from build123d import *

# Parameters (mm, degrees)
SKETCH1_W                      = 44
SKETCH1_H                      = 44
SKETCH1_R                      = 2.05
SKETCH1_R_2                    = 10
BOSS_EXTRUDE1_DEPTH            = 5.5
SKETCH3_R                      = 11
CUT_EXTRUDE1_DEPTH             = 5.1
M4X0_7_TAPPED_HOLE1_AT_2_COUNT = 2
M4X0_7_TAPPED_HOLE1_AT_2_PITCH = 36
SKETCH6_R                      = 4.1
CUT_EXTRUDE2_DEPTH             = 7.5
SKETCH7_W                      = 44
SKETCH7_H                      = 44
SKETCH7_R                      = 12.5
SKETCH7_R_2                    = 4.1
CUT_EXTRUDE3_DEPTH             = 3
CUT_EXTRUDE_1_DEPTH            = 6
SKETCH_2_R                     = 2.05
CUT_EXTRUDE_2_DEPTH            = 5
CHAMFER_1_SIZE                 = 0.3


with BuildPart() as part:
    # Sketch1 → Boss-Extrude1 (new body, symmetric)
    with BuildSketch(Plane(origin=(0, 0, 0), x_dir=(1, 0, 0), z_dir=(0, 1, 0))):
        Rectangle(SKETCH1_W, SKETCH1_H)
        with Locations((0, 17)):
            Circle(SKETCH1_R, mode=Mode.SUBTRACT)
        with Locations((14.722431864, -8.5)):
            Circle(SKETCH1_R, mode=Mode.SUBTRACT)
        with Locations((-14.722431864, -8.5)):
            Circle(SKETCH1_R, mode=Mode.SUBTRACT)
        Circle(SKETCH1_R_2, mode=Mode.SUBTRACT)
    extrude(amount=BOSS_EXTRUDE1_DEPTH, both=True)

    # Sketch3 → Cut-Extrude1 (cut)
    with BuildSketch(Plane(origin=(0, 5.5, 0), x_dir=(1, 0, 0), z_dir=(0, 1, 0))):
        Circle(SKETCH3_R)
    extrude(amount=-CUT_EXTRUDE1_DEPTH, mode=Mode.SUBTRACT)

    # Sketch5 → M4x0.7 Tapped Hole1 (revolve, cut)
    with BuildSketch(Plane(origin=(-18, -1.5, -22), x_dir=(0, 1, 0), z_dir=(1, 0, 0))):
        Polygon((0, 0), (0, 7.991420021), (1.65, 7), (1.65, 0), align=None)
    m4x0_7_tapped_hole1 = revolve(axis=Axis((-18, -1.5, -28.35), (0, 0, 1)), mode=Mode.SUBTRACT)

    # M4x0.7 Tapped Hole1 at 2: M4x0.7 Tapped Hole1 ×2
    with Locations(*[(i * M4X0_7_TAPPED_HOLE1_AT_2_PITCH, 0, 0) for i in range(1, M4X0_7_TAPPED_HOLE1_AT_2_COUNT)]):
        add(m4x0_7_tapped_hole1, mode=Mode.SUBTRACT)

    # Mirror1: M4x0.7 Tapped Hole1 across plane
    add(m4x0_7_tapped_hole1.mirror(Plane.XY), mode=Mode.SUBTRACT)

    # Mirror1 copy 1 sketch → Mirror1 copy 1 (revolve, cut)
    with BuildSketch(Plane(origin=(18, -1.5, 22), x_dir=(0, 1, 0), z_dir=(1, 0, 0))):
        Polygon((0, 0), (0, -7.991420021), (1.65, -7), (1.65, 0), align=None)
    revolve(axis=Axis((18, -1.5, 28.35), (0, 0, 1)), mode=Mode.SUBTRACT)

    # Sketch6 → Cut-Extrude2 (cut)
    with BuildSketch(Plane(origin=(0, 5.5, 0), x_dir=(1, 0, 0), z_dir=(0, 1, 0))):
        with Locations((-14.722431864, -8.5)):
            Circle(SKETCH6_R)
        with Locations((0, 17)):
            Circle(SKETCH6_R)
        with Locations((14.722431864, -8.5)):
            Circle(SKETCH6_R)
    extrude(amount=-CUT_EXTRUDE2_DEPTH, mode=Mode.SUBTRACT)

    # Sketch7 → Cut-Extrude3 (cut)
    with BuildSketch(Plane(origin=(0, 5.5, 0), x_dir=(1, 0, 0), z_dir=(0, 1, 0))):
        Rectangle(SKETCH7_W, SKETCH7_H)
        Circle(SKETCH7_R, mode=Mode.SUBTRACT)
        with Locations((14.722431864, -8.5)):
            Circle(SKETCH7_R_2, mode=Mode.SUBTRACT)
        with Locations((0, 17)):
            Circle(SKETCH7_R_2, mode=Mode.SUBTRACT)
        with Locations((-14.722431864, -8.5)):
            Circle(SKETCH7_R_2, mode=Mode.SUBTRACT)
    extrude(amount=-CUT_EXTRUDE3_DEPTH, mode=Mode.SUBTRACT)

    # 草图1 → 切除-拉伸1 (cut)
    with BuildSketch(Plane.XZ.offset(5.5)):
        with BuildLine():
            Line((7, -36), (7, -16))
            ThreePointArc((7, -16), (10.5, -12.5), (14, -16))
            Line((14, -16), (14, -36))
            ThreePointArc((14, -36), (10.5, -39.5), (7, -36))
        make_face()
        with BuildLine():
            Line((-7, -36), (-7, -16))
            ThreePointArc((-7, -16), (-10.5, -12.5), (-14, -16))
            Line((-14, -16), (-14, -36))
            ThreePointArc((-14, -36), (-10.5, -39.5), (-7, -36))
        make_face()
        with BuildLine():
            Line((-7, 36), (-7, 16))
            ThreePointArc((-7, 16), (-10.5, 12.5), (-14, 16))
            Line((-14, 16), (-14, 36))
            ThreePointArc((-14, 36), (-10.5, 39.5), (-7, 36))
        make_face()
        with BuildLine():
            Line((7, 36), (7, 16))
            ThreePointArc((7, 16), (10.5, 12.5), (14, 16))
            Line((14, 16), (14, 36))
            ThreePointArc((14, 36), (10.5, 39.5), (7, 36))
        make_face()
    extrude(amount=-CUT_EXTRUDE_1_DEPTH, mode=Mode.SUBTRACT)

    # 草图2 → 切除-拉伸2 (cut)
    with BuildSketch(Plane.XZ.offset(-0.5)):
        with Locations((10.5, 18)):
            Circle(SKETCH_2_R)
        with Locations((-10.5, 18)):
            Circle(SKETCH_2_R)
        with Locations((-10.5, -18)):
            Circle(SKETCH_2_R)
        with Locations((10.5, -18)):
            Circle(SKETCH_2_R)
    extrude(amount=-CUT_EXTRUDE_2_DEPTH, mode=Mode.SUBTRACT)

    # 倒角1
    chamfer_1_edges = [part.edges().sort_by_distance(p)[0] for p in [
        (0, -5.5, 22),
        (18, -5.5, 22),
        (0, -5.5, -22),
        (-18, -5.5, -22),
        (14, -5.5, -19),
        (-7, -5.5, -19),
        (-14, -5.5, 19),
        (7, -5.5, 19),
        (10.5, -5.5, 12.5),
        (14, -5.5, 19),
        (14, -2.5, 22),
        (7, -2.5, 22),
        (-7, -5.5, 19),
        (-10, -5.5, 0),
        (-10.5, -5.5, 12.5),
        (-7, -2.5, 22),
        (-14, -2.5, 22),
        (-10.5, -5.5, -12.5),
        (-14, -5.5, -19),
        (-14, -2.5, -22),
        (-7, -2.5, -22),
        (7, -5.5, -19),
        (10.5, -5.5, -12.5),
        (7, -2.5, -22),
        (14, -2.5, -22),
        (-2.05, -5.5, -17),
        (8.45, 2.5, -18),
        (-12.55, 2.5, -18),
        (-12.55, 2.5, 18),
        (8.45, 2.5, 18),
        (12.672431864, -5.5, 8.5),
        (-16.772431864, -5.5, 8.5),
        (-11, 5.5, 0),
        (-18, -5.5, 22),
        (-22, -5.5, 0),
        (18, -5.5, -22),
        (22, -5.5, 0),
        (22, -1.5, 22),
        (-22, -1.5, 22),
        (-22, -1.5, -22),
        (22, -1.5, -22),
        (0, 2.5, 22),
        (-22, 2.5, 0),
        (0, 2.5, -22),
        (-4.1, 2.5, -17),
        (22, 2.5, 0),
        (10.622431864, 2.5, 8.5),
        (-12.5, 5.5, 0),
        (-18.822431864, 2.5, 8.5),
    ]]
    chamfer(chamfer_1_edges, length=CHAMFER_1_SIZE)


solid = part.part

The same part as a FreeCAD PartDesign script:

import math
import FreeCAD as App
import Part
import Sketcher

V = App.Vector
Q = App.Units.Quantity


def edges_at(feature, points):
    """Names of the edges that pass closest to the given points."""
    edges = feature.Shape.Edges
    near = lambda p: min(range(len(edges)), key=lambda i: edges[i].distToShape(Part.Vertex(*p))[0])
    return sorted({f"Edge{near(p) + 1}" for p in points})

doc = App.newDocument("Part")
body = doc.addObject("PartDesign::Body", "Body")

sketch1 = doc.addObject("Sketcher::SketchObject", "Sketch")
body.addObject(sketch1)
sketch1.AttachmentSupport = (doc.XZ_Plane, [""])
sketch1.MapMode = "FlatFace"
sketch1.addGeometry([
    Part.LineSegment(V(-22, -22, 0), V(-22, 22, 0)),
    Part.LineSegment(V(-22, 22, 0), V(22, 22, 0)),
    Part.LineSegment(V(22, 22, 0), V(22, -22, 0)),
    Part.LineSegment(V(22, -22, 0), V(-22, -22, 0)),
    Part.Circle(V(-14.7, 8.5, 0), V(0, 0, 1), 2),
    Part.Circle(V(14.7, 8.5, 0), V(0, 0, 1), 2),
    Part.Circle(V(0, 0, 0), V(0, 0, 1), 10),
    Part.Circle(V(0, -17, 0), V(0, 0, 1), 2),
], False)
sketch1.addConstraint([
    Sketcher.Constraint("Coincident", 0, 2, 1, 1),
    Sketcher.Constraint("Coincident", 1, 2, 2, 1),
    Sketcher.Constraint("Coincident", 2, 2, 3, 1),
    Sketcher.Constraint("Coincident", 3, 2, 0, 1),
    Sketcher.Constraint("Vertical", 0),
    Sketcher.Constraint("Horizontal", 1),
    Sketcher.Constraint("Vertical", 2),
    Sketcher.Constraint("Horizontal", 3),
    Sketcher.Constraint("Coincident", 6, 3, -1, 1),
    Sketcher.Constraint("Equal", 4, 5),
    Sketcher.Constraint("Equal", 5, 7),
    Sketcher.Constraint("Symmetric", 0, 2, 2, 2, -1, 1),
    Sketcher.Constraint("Symmetric", 4, 3, 5, 3, -2),
    Sketcher.Constraint("PointOnObject", 7, 3, -2),
    Sketcher.Constraint("Equal", 3, 0),
    Sketcher.Constraint("Diameter", 6, 20.0),
    Sketcher.Constraint("Diameter", 4, 4.1),
    Sketcher.Constraint("DistanceX", 1, 1, 1, 2, 44.0),
    Sketcher.Constraint("DistanceY", 7, 3, -1, 1, 17.0),
    Sketcher.Constraint("DistanceY", -1, 1, 4, 3, 8.5),
    Sketcher.Constraint("DistanceX", 4, 3, -1, 1, 14.722432),
])
pad1 = doc.addObject("PartDesign::Pad", "Pad")
body.addObject(pad1)
pad1.Profile = sketch1
pad1.Length = 11
pad1.Midplane = True

sketch2 = doc.addObject("Sketcher::SketchObject", "Sketch001")
body.addObject(sketch2)
sketch2.AttachmentSupport = (doc.XZ_Plane, [""])
sketch2.MapMode = "FlatFace"
sketch2.AttachmentOffset = App.Placement(V(0, 0, -5.5), App.Rotation())
sketch2.addGeometry(Part.Circle(V(0, 0, 0), V(0, 0, 1), 11), False)
sketch2.addConstraint([
    Sketcher.Constraint("Coincident", 0, 3, -1, 1),
    Sketcher.Constraint("Diameter", 0, 22.0),
])
pocket1 = doc.addObject("PartDesign::Pocket", "Pocket")
body.addObject(pocket1)
pocket1.Profile = sketch2
pocket1.Length = 5.1
pocket1.Reversed = True

sketch3 = doc.addObject("Sketcher::SketchObject", "Sketch002")
body.addObject(sketch3)
sketch3.AttachmentSupport = (doc.YZ_Plane, [""])
sketch3.MapMode = "FlatFace"
sketch3.AttachmentOffset = App.Placement(V(0, 0, -18), App.Rotation())
sketch3.addGeometry([
    Part.LineSegment(V(-1.5, -14, 0), V(-1.5, -22, 0)),
    Part.LineSegment(V(-1.5, -22, 0), V(0.1, -22, 0)),
    Part.LineSegment(V(0.1, -22, 0), V(0.1, -15, 0)),
    Part.LineSegment(V(0.1, -15, 0), V(-1.5, -14, 0)),
], False)
sketch3.addGeometry(Part.LineSegment(V(-1.5, -22, 0), V(-1.5, -14, 0)), True)
sketch3.addConstraint([
    Sketcher.Constraint("Coincident", 0, 2, 1, 1),
    Sketcher.Constraint("Coincident", 1, 2, 2, 1),
    Sketcher.Constraint("Coincident", 2, 2, 3, 1),
    Sketcher.Constraint("Coincident", 3, 2, 0, 1),
    Sketcher.Constraint("Vertical", 0),
    Sketcher.Constraint("Horizontal", 1),
    Sketcher.Constraint("Vertical", 2),
    Sketcher.Constraint("Vertical", 4),
    Sketcher.Constraint("Coincident", 4, 1, 0, 2),
    Sketcher.Constraint("Equal", 0, 4),
    Sketcher.Constraint("DistanceY", 2, 1, 2, 2, 7.0),
    Sketcher.Constraint("Angle", 3, Q("149 deg")),
    Sketcher.Constraint("DistanceY", 0, 2, -1, 1, 22.0),
    Sketcher.Constraint("DistanceX", 1, 1, 1, 2, 1.65),
    Sketcher.Constraint("DistanceX", 0, 2, -1, 1, 1.5),
])
groove = doc.addObject("PartDesign::Groove", "Groove")
body.addObject(groove)
groove.Profile = sketch3
groove.ReferenceAxis = (sketch3, ["Axis0"])
groove.Angle = 360
doc.recompute()

linearpattern = doc.addObject("PartDesign::LinearPattern", "LinearPattern")
body.addObject(linearpattern)
linearpattern.Originals = [groove]
linearpattern.Direction = (doc.X_Axis, [""])
linearpattern.Mode = "offset"
linearpattern.Offset = 36
linearpattern.Occurrences = 2
body.Tip = linearpattern
doc.recompute()

mirrored = doc.addObject("PartDesign::Mirrored", "Mirrored")
body.addObject(mirrored)
mirrored.Originals = [groove]
mirrored.MirrorPlane = (doc.XY_Plane, [""])
body.Tip = mirrored

sketch4 = doc.addObject("Sketcher::SketchObject", "Sketch003")
body.addObject(sketch4)
sketch4.AttachmentSupport = (doc.YZ_Plane, [""])
sketch4.MapMode = "FlatFace"
sketch4.AttachmentOffset = App.Placement(V(0, 0, 18), App.Rotation())
sketch4.addGeometry([
    Part.LineSegment(V(-1.5, 22, 0), V(-1.5, 14, 0)),
    Part.LineSegment(V(-1.5, 14, 0), V(0.1, 15, 0)),
    Part.LineSegment(V(0.1, 15, 0), V(0.1, 22, 0)),
    Part.LineSegment(V(0.1, 22, 0), V(-1.5, 22, 0)),
], False)
sketch4.addGeometry(Part.LineSegment(V(-1.5, 14, 0), V(-1.5, 22, 0)), True)
sketch4.addConstraint([
    Sketcher.Constraint("Coincident", 0, 2, 1, 1),
    Sketcher.Constraint("Coincident", 1, 2, 2, 1),
    Sketcher.Constraint("Coincident", 2, 2, 3, 1),
    Sketcher.Constraint("Coincident", 3, 2, 0, 1),
    Sketcher.Constraint("Vertical", 0),
    Sketcher.Constraint("Vertical", 2),
    Sketcher.Constraint("Horizontal", 3),
    Sketcher.Constraint("Vertical", 4),
    Sketcher.Constraint("Coincident", 4, 1, 0, 2),
    Sketcher.Constraint("Horizontal", 2, 2, 4, 2),
    Sketcher.Constraint("DistanceY", 2, 1, 2, 2, 7.0),
    Sketcher.Constraint("Angle", 1, Q("31 deg")),
    Sketcher.Constraint("DistanceY", -1, 1, 1, 2, 15.0),
    Sketcher.Constraint("DistanceX", 3, 2, 3, 1, 1.65),
    Sketcher.Constraint("DistanceX", 0, 2, -1, 1, 1.5),
])
groove2 = doc.addObject("PartDesign::Groove", "Groove001")
body.addObject(groove2)
groove2.Profile = sketch4
groove2.ReferenceAxis = (sketch4, ["Axis0"])
groove2.Angle = 360

sketch5 = doc.addObject("Sketcher::SketchObject", "Sketch004")
body.addObject(sketch5)
sketch5.AttachmentSupport = (doc.XZ_Plane, [""])
sketch5.MapMode = "FlatFace"
sketch5.AttachmentOffset = App.Placement(V(0, 0, -5.5), App.Rotation())
sketch5.addGeometry([
    Part.Circle(V(-14.7, 8.5, 0), V(0, 0, 1), 4.1),
    Part.Circle(V(0, -17, 0), V(0, 0, 1), 4.1),
    Part.Circle(V(14.7, 8.5, 0), V(0, 0, 1), 4.1),
], False)
sketch5.addConstraint([
    Sketcher.Constraint("Equal", 0, 1),
    Sketcher.Constraint("Equal", 1, 2),
    Sketcher.Constraint("Symmetric", 0, 3, 2, 3, -2),
    Sketcher.Constraint("PointOnObject", 1, 3, -2),
    Sketcher.Constraint("Diameter", 0, 8.2),
    Sketcher.Constraint("DistanceY", 1, 3, -1, 1, 17.0),
    Sketcher.Constraint("DistanceY", -1, 1, 0, 3, 8.5),
    Sketcher.Constraint("DistanceX", 0, 3, -1, 1, 14.722432),
])
pocket2 = doc.addObject("PartDesign::Pocket", "Pocket001")
body.addObject(pocket2)
pocket2.Profile = sketch5
pocket2.Length = 7.5
pocket2.Reversed = True

sketch6 = doc.addObject("Sketcher::SketchObject", "Sketch005")
body.addObject(sketch6)
sketch6.AttachmentSupport = (doc.XZ_Plane, [""])
sketch6.MapMode = "FlatFace"
sketch6.AttachmentOffset = App.Placement(V(0, 0, -5.5), App.Rotation())
sketch6.addGeometry([
    Part.LineSegment(V(-22, -22, 0), V(-22, 22, 0)),
    Part.LineSegment(V(-22, 22, 0), V(22, 22, 0)),
    Part.LineSegment(V(22, 22, 0), V(22, -22, 0)),
    Part.LineSegment(V(22, -22, 0), V(-22, -22, 0)),
    Part.Circle(V(-14.7, 8.5, 0), V(0, 0, 1), 4.1),
    Part.Circle(V(14.7, 8.5, 0), V(0, 0, 1), 4.1),
    Part.Circle(V(0, 0, 0), V(0, 0, 1), 12.5),
    Part.Circle(V(0, -17, 0), V(0, 0, 1), 4.1),
], False)
sketch6.addConstraint([
    Sketcher.Constraint("Coincident", 0, 2, 1, 1),
    Sketcher.Constraint("Coincident", 1, 2, 2, 1),
    Sketcher.Constraint("Coincident", 2, 2, 3, 1),
    Sketcher.Constraint("Coincident", 3, 2, 0, 1),
    Sketcher.Constraint("Vertical", 0),
    Sketcher.Constraint("Horizontal", 1),
    Sketcher.Constraint("Vertical", 2),
    Sketcher.Constraint("Horizontal", 3),
    Sketcher.Constraint("Coincident", 6, 3, -1, 1),
    Sketcher.Constraint("Equal", 4, 5),
    Sketcher.Constraint("Equal", 5, 7),
    Sketcher.Constraint("Symmetric", 0, 2, 2, 2, -1, 1),
    Sketcher.Constraint("Symmetric", 4, 3, 5, 3, -2),
    Sketcher.Constraint("PointOnObject", 7, 3, -2),
    Sketcher.Constraint("Equal", 3, 0),
    Sketcher.Constraint("Diameter", 6, 25.0),
    Sketcher.Constraint("Diameter", 4, 8.2),
    Sketcher.Constraint("DistanceX", 1, 1, 1, 2, 44.0),
    Sketcher.Constraint("DistanceY", 7, 3, -1, 1, 17.0),
    Sketcher.Constraint("DistanceY", -1, 1, 4, 3, 8.5),
    Sketcher.Constraint("DistanceX", 4, 3, -1, 1, 14.722432),
])
pocket3 = doc.addObject("PartDesign::Pocket", "Pocket002")
body.addObject(pocket3)
pocket3.Profile = sketch6
pocket3.Length = 3
pocket3.Reversed = True

sketch7 = doc.addObject("Sketcher::SketchObject", "Sketch006")
body.addObject(sketch7)
sketch7.AttachmentSupport = (doc.XZ_Plane, [""])
sketch7.MapMode = "FlatFace"
sketch7.AttachmentOffset = App.Placement(V(0, 0, 5.5), App.Rotation())
sketch7.addGeometry([
    Part.LineSegment(V(7, -16, 0), V(7, -36, 0)),
    Part.ArcOfCircle(Part.Circle(V(10.5, -36, 0), V(0, 0, 1), 3.5), math.radians(180), math.radians(360)),
    Part.LineSegment(V(14, -36, 0), V(14, -16, 0)),
    Part.ArcOfCircle(Part.Circle(V(10.5, -16, 0), V(0, 0, 1), 3.5), math.radians(0), math.radians(180)),
    Part.LineSegment(V(-7, -36, 0), V(-7, -16, 0)),
    Part.ArcOfCircle(Part.Circle(V(-10.5, -16, 0), V(0, 0, 1), 3.5), math.radians(0), math.radians(180)),
    Part.LineSegment(V(-14, -16, 0), V(-14, -36, 0)),
    Part.ArcOfCircle(Part.Circle(V(-10.5, -36, 0), V(0, 0, 1), 3.5), math.radians(180), math.radians(360)),
    Part.LineSegment(V(-7, 16, 0), V(-7, 36, 0)),
    Part.ArcOfCircle(Part.Circle(V(-10.5, 36, 0), V(0, 0, 1), 3.5), math.radians(0), math.radians(180)),
    Part.LineSegment(V(-14, 36, 0), V(-14, 16, 0)),
    Part.ArcOfCircle(Part.Circle(V(-10.5, 16, 0), V(0, 0, 1), 3.5), math.radians(180), math.radians(360)),
    Part.LineSegment(V(7, 36, 0), V(7, 16, 0)),
    Part.ArcOfCircle(Part.Circle(V(10.5, 16, 0), V(0, 0, 1), 3.5), math.radians(180), math.radians(360)),
    Part.LineSegment(V(14, 16, 0), V(14, 36, 0)),
    Part.ArcOfCircle(Part.Circle(V(10.5, 36, 0), V(0, 0, 1), 3.5), math.radians(0), math.radians(180)),
], False)
sketch7.addConstraint([
    Sketcher.Constraint("Tangent", 0, 2, 1, 1),
    Sketcher.Constraint("Tangent", 1, 2, 2, 1),
    Sketcher.Constraint("Tangent", 2, 2, 3, 1),
    Sketcher.Constraint("Tangent", 3, 2, 0, 1),
    Sketcher.Constraint("Tangent", 4, 2, 5, 1),
    Sketcher.Constraint("Tangent", 5, 2, 6, 1),
    Sketcher.Constraint("Tangent", 6, 2, 7, 1),
    Sketcher.Constraint("Tangent", 7, 2, 4, 1),
    Sketcher.Constraint("Tangent", 8, 2, 9, 1),
    Sketcher.Constraint("Tangent", 9, 2, 10, 1),
    Sketcher.Constraint("Tangent", 10, 2, 11, 1),
    Sketcher.Constraint("Tangent", 11, 2, 8, 1),
    Sketcher.Constraint("Tangent", 12, 2, 13, 1),
    Sketcher.Constraint("Tangent", 13, 2, 14, 1),
    Sketcher.Constraint("Tangent", 14, 2, 15, 1),
    Sketcher.Constraint("Tangent", 15, 2, 12, 1),
    Sketcher.Constraint("Vertical", 0),
    Sketcher.Constraint("Vertical", 2),
    Sketcher.Constraint("Vertical", 4),
    Sketcher.Constraint("Vertical", 6),
    Sketcher.Constraint("Vertical", 8),
    Sketcher.Constraint("Vertical", 10),
    Sketcher.Constraint("Vertical", 12),
    Sketcher.Constraint("Vertical", 14),
    Sketcher.Constraint("Equal", 3, 5),
    Sketcher.Constraint("Equal", 7, 9),
    Sketcher.Constraint("Equal", 11, 13),
    Sketcher.Constraint("Symmetric", 1, 3, 9, 3, -1, 1),
    Sketcher.Constraint("Symmetric", 5, 3, 13, 3, -1, 1),
    Sketcher.Constraint("Symmetric", 3, 3, 5, 3, -2),
    Sketcher.Constraint("Horizontal", 1, 3, 7, 3),
    Sketcher.Constraint("Horizontal", 11, 3, 13, 3),
    Sketcher.Constraint("Horizontal", 9, 3, 15, 3),
    Sketcher.Constraint("Radius", 1, 3.5),
    Sketcher.Constraint("DistanceY", 0, 2, 0, 1, 20.0),
    Sketcher.Constraint("DistanceY", 1, 3, -1, 1, 36.0),
    Sketcher.Constraint("DistanceX", -1, 1, 0, 2, 7.0),
])
pocket4 = doc.addObject("PartDesign::Pocket", "Pocket003")
body.addObject(pocket4)
pocket4.Profile = sketch7
pocket4.Length = 6

sketch8 = doc.addObject("Sketcher::SketchObject", "Sketch007")
body.addObject(sketch8)
sketch8.AttachmentSupport = (doc.XZ_Plane, [""])
sketch8.MapMode = "FlatFace"
sketch8.AttachmentOffset = App.Placement(V(0, 0, -0.5), App.Rotation())
sketch8.addGeometry([
    Part.Circle(V(10.5, 18, 0), V(0, 0, 1), 2),
    Part.Circle(V(-10.5, 18, 0), V(0, 0, 1), 2),
    Part.Circle(V(-10.5, -18, 0), V(0, 0, 1), 2),
    Part.Circle(V(10.5, -18, 0), V(0, 0, 1), 2),
], False)
sketch8.addConstraint([
    Sketcher.Constraint("Equal", 0, 1),
    Sketcher.Constraint("Equal", 1, 2),
    Sketcher.Constraint("Equal", 2, 3),
    Sketcher.Constraint("Symmetric", 0, 3, 2, 3, -1, 1),
    Sketcher.Constraint("Symmetric", 1, 3, 3, 3, -1, 1),
    Sketcher.Constraint("Symmetric", 0, 3, 1, 3, -2),
    Sketcher.Constraint("Diameter", 0, 4.1),
    Sketcher.Constraint("DistanceY", -1, 1, 0, 3, 18.0),
    Sketcher.Constraint("DistanceX", 1, 3, 0, 3, 21.0),
])
pocket5 = doc.addObject("PartDesign::Pocket", "Pocket004")
body.addObject(pocket5)
pocket5.Profile = sketch8
pocket5.Length = 5
doc.recompute()

chamfer = doc.addObject("PartDesign::Chamfer", "Chamfer")
body.addObject(chamfer)
chamfer.Base = (pocket5, edges_at(pocket5, [
    (0, -5.5, 22),
    (18, -5.5, 22),
    (0, -5.5, -22),
    (-18, -5.5, -22),
    (14, -5.5, -19),
    (-7, -5.5, -19),
    (-14, -5.5, 19),
    (7, -5.5, 19),
    (10.5, -5.5, 12.5),
    (14, -5.5, 19),
    (14, -2.5, 22),
    (7, -2.5, 22),
    (-7, -5.5, 19),
    (-10, -5.5, 0),
    (-10.5, -5.5, 12.5),
    (-7, -2.5, 22),
    (-14, -2.5, 22),
    (-10.5, -5.5, -12.5),
    (-14, -5.5, -19),
    (-14, -2.5, -22),
    (-7, -2.5, -22),
    (7, -5.5, -19),
    (10.5, -5.5, -12.5),
    (7, -2.5, -22),
    (14, -2.5, -22),
    (-2.05, -5.5, -17),
    (8.45, 2.5, -18),
    (-12.55, 2.5, -18),
    (-12.55, 2.5, 18),
    (8.45, 2.5, 18),
    (12.672, -5.5, 8.5),
    (-16.772, -5.5, 8.5),
    (-11, 5.5, 0),
    (-18, -5.5, 22),
    (-22, -5.5, 0),
    (18, -5.5, -22),
    (22, -5.5, 0),
    (22, -1.5, 22),
    (-22, -1.5, 22),
    (-22, -1.5, -22),
    (22, -1.5, -22),
    (0, 2.5, 22),
    (-22, 2.5, 0),
    (0, 2.5, -22),
    (-4.1, 2.5, -17),
    (22, 2.5, 0),
    (10.622, 2.5, 8.5),
    (-12.5, 5.5, 0),
    (-18.822, 2.5, 8.5),
]))
chamfer.Size = 0.3

doc.recompute()
